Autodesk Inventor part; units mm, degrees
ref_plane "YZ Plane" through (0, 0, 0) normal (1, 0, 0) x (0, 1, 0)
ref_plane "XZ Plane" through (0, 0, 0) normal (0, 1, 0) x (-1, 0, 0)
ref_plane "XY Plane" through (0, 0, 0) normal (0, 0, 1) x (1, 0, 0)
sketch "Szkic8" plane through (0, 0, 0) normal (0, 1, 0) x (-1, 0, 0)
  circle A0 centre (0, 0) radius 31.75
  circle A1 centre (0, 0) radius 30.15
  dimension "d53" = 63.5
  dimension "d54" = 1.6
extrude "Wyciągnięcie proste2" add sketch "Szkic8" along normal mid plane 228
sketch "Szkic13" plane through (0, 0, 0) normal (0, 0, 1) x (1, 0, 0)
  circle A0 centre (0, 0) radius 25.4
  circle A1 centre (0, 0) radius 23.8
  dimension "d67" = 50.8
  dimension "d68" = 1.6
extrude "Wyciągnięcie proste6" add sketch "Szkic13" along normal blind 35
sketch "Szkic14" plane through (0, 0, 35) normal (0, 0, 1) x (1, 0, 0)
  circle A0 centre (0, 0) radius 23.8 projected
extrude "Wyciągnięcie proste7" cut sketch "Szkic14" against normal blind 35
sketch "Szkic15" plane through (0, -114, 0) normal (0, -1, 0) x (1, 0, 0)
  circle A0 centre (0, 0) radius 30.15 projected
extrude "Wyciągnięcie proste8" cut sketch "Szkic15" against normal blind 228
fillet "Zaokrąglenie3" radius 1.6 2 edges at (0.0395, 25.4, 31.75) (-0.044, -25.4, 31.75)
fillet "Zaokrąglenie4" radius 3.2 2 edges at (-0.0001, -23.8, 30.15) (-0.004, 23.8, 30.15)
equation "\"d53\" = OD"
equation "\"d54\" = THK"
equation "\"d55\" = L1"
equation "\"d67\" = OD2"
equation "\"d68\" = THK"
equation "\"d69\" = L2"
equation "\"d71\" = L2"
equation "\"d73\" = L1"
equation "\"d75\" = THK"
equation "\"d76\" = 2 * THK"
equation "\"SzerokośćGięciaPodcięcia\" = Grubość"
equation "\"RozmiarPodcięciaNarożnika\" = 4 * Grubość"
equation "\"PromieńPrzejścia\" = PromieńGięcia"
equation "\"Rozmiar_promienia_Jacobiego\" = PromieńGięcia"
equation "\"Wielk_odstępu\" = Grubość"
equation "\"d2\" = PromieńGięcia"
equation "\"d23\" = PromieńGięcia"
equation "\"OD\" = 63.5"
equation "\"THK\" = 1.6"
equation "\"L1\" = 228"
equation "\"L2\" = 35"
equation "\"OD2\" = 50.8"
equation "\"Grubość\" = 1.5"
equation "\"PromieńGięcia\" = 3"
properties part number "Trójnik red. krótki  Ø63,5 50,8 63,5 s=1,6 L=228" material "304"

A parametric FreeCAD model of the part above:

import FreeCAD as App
import Part
import Sketcher

V = App.Vector


def edges_at(feature, points):
    """Names of the edges that pass closest to the given points."""
    edges = feature.Shape.Edges
    near = lambda p: min(range(len(edges)), key=lambda i: edges[i].distToShape(Part.Vertex(*p))[0])
    return sorted({f"Edge{near(p) + 1}" for p in points})

doc = App.newDocument("Part")
body = doc.addObject("PartDesign::Body", "Body")

sketch1 = doc.addObject("Sketcher::SketchObject", "Sketch")
body.addObject(sketch1)
sketch1.AttachmentSupport = (doc.XZ_Plane, [""])
sketch1.MapMode = "FlatFace"
sketch1.addGeometry(Part.Circle(V(0, 0, 0), V(0, 0, 1), 31.75), False)
sketch1.addGeometry(Part.Circle(V(0, 0, 0), V(0, 0, 1), 30.15), False)
sketch1.addConstraint(Sketcher.Constraint("Coincident", 0, 3, -1, 1))
sketch1.addConstraint(Sketcher.Constraint("Coincident", 1, 3, -1, 1))
sketch1.addConstraint(Sketcher.Constraint("Diameter", 0, 63.5))
sketch1.addConstraint(Sketcher.Constraint("Diameter", 1, 60.3))
pad1 = doc.addObject("PartDesign::Pad", "Pad")
body.addObject(pad1)
pad1.Profile = sketch1
pad1.Length = 228
pad1.Midplane = True

sketch2 = doc.addObject("Sketcher::SketchObject", "Sketch001")
body.addObject(sketch2)
sketch2.AttachmentSupport = (doc.XY_Plane, [""])
sketch2.MapMode = "FlatFace"
sketch2.addGeometry(Part.Circle(V(0, 0, 0), V(0, 0, 1), 25.4), False)
sketch2.addGeometry(Part.Circle(V(0, 0, 0), V(0, 0, 1), 23.8), False)
sketch2.addConstraint(Sketcher.Constraint("Coincident", 0, 3, -1, 1))
sketch2.addConstraint(Sketcher.Constraint("Coincident", 1, 3, -1, 1))
sketch2.addConstraint(Sketcher.Constraint("Diameter", 0, 50.8))
sketch2.addConstraint(Sketcher.Constraint("Diameter", 1, 47.6))
pad2 = doc.addObject("PartDesign::Pad", "Pad001")
body.addObject(pad2)
pad2.Profile = sketch2
pad2.Length = 35

sketch3 = doc.addObject("Sketcher::SketchObject", "Sketch002")
body.addObject(sketch3)
sketch3.AttachmentSupport = (doc.XY_Plane, [""])
sketch3.MapMode = "FlatFace"
sketch3.AttachmentOffset = App.Placement(V(0, 0, 35), App.Rotation())
sketch3.addGeometry(Part.Circle(V(0, 0, 0), V(0, 0, 1), 23.8), False)
sketch3.addConstraint(Sketcher.Constraint("Coincident", 0, 3, -1, 1))
sketch3.addConstraint(Sketcher.Constraint("Diameter", 0, 47.6))
pocket1 = doc.addObject("PartDesign::Pocket", "Pocket")
body.addObject(pocket1)
pocket1.Profile = sketch3
pocket1.Length = 35

sketch4 = doc.addObject("Sketcher::SketchObject", "Sketch003")
body.addObject(sketch4)
sketch4.AttachmentSupport = (doc.XZ_Plane, [""])
sketch4.MapMode = "FlatFace"
sketch4.AttachmentOffset = App.Placement(V(0, 0, 114), App.Rotation())
sketch4.addGeometry(Part.Circle(V(0, 0, 0), V(0, 0, 1), 30.15), False)
sketch4.addConstraint(Sketcher.Constraint("Coincident", 0, 3, -1, 1))
sketch4.addConstraint(Sketcher.Constraint("Diameter", 0, 60.3))
pocket2 = doc.addObject("PartDesign::Pocket", "Pocket001")
body.addObject(pocket2)
pocket2.Profile = sketch4
pocket2.Length = 228
doc.recompute()

fillet = doc.addObject("PartDesign::Fillet", "Fillet")
body.addObject(fillet)
fillet.Base = (pocket2, edges_at(pocket2, [(0.04, 25.4, 31.75), (-0.044, -25.4, 31.75)]))
fillet.Radius = 1.6
doc.recompute()

fillet2 = doc.addObject("PartDesign::Fillet", "Fillet001")
body.addObject(fillet2)
fillet2.Base = (fillet, edges_at(fillet, [(0, -23.8, 30.15), (-0.004, 23.8, 30.15)]))
fillet2.Radius = 3.2

doc.recompute()
